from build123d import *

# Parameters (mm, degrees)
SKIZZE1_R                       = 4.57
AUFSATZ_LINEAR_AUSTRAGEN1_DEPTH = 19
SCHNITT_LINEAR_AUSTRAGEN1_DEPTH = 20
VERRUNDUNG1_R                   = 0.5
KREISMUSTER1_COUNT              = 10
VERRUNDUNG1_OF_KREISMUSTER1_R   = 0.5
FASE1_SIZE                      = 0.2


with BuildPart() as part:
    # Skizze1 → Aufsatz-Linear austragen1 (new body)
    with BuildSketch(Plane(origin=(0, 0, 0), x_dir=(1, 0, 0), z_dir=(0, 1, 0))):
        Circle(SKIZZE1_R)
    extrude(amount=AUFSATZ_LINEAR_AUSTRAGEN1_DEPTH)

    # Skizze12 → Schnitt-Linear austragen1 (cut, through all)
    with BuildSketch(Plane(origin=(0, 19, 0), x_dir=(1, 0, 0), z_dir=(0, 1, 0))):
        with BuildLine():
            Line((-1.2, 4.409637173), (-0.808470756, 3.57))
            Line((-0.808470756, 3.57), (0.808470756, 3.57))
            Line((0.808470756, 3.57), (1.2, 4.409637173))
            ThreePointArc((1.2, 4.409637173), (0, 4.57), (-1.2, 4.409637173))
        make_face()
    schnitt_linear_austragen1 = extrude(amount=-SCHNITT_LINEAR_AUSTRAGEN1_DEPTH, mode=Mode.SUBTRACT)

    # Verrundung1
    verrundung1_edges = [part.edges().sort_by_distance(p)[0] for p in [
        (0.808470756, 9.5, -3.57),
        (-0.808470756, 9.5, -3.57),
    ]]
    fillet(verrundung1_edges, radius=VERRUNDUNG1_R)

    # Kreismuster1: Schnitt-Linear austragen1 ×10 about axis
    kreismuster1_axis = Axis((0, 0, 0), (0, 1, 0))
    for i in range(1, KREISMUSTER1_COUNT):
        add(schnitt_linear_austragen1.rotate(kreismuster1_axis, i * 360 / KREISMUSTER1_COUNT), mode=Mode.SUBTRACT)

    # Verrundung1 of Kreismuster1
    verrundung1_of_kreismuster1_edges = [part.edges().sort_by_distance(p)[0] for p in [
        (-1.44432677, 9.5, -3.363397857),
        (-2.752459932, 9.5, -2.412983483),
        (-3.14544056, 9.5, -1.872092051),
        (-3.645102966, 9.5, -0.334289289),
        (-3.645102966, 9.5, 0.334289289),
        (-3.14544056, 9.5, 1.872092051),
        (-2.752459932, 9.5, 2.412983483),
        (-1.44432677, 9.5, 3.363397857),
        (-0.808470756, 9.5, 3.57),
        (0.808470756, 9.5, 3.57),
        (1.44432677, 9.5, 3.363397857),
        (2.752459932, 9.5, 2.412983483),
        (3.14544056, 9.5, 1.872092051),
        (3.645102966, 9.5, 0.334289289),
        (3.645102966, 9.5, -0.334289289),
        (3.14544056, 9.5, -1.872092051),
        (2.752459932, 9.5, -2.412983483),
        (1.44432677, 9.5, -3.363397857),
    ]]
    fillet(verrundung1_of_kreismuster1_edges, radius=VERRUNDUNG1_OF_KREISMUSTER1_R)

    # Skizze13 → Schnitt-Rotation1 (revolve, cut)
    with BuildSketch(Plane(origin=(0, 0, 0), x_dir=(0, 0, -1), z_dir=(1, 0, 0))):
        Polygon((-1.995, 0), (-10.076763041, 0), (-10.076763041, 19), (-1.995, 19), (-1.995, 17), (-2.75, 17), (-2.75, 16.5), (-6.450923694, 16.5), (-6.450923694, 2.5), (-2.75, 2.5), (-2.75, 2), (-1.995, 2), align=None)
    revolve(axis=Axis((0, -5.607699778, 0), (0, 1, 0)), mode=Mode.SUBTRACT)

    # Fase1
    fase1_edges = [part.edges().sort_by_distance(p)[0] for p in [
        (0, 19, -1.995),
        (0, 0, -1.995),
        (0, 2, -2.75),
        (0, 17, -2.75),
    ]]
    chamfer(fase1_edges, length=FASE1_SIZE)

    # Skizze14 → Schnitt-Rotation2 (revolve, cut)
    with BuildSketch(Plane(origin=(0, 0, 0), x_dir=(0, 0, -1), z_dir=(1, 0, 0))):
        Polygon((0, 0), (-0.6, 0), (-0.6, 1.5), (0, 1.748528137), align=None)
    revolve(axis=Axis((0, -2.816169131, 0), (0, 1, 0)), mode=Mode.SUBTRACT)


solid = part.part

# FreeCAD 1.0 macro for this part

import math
import FreeCAD as App
import Part
import Sketcher
Q = App.Units.Quantity


def edges_at(feature, points):
    """Names of the edges that pass closest to the given points."""
    edges = feature.Shape.Edges
    near = lambda p: min(range(len(edges)), key=lambda i: edges[i].distToShape(Part.Vertex(*p))[0])
    return sorted({f"Edge{near(p) + 1}" for p in points})


def add_polygon(sketch, points):
    """Adds a closed chain of lines whose ends are joined by coincident constraints."""
    first, n = sketch.GeometryCount, len(points)
    for a, b in zip(points, points[1:] + points[:1]):
        sketch.addGeometry(Part.LineSegment(App.Vector(*a, 0), App.Vector(*b, 0)), False)
    for i in range(n):
        sketch.addConstraint(Sketcher.Constraint("Coincident", first + i, 2, first + (i + 1) % n, 1))

doc = App.newDocument("Part")
body = doc.addObject("PartDesign::Body", "Body")

# Sketch on XZ plane
sketch1 = body.newObject("Sketcher::SketchObject", "Sketch")
sketch1.AttachmentSupport = (doc.getObject("XZ_Plane"), [""])
sketch1.MapMode = "FlatFace"
sketch1.addGeometry(Part.Circle(App.Vector(0, 0, 0), App.Vector(0, 0, 1), 4.6), False)
sketch1.addConstraint(Sketcher.Constraint("Coincident", 0, 3, -1, 1))
sketch1.addConstraint(Sketcher.Constraint("Diameter", 0, 9.14))
pad1 = body.newObject("PartDesign::Pad", "Pad")
pad1.Profile = sketch1
pad1.Length = 19
pad1.Reversed = True

# Sketch on XZ plane
sketch2 = body.newObject("Sketcher::SketchObject", "Sketch001")
sketch2.AttachmentSupport = (doc.getObject("XZ_Plane"), [""])
sketch2.MapMode = "FlatFace"
sketch2.AttachmentOffset = App.Placement(App.Vector(0, 0, -19), App.Rotation())
sketch2.addGeometry(Part.LineSegment(App.Vector(-1.2, -4.4, 0), App.Vector(-0.8, -3.6, 0)), False)
sketch2.addGeometry(Part.LineSegment(App.Vector(-0.8, -3.6, 0), App.Vector(0.8, -3.6, 0)), False)
sketch2.addGeometry(Part.LineSegment(App.Vector(0.8, -3.6, 0), App.Vector(1.2, -4.4, 0)), False)
sketch2.addGeometry(Part.ArcOfCircle(Part.Circle(App.Vector(0, 0, 0), App.Vector(0, 0, 1), 4.6), math.radians(-105), math.radians(-75)), False)
sketch2.addConstraint(Sketcher.Constraint("Coincident", 0, 2, 1, 1))
sketch2.addConstraint(Sketcher.Constraint("Coincident", 1, 2, 2, 1))
sketch2.addConstraint(Sketcher.Constraint("Coincident", 2, 2, 3, 2))
sketch2.addConstraint(Sketcher.Constraint("Coincident", 3, 1, 0, 1))
sketch2.addConstraint(Sketcher.Constraint("Horizontal", 1))
sketch2.addConstraint(Sketcher.Constraint("Coincident", 3, 3, -1, 1))
sketch2.addConstraint(Sketcher.Constraint("Horizontal", 2, 2, 3, 1))
sketch2.addConstraint(Sketcher.Constraint("Equal", 0, 2))
sketch2.addConstraint(Sketcher.Constraint("Angle", 0, Q("65 deg")))
sketch2.addConstraint(Sketcher.Constraint("Radius", 3, 4.57))
sketch2.addConstraint(Sketcher.Constraint("DistanceX", -1, 1, 2, 2, 1.2))
sketch2.addConstraint(Sketcher.Constraint("DistanceY", 0, 2, -1, 1, 3.57))
pocket1 = body.newObject("PartDesign::Pocket", "Pocket")
pocket1.Profile = sketch2
pocket1.Type = "ThroughAll"
pocket1.Reversed = True
doc.recompute()

fillet = body.newObject("PartDesign::Fillet", "Fillet")
fillet.Base = (pocket1, edges_at(pocket1, [(0.808, 9.5, -3.57), (-0.808, 9.5, -3.57)]))
fillet.Radius = 0.5
doc.recompute()

polarpattern = body.newObject("PartDesign::PolarPattern", "PolarPattern")
polarpattern.Originals = [pocket1]
polarpattern.Axis = (doc.getObject("Y_Axis"), [""])
polarpattern.Angle = 360
polarpattern.Occurrences = 10
body.Tip = polarpattern
doc.recompute()

fillet2 = body.newObject("PartDesign::Fillet", "Fillet001")
fillet2.Base = (polarpattern, edges_at(polarpattern, [
    (-1.444, 9.5, -3.363),
    (-2.752, 9.5, -2.413),
    (-3.145, 9.5, -1.872),
    (-3.645, 9.5, -0.334),
    (-3.645, 9.5, 0.334),
    (-3.145, 9.5, 1.872),
    (-2.752, 9.5, 2.413),
    (-1.444, 9.5, 3.363),
    (-0.808, 9.5, 3.57),
    (0.808, 9.5, 3.57),
    (1.444, 9.5, 3.363),
    (2.752, 9.5, 2.413),
    (3.145, 9.5, 1.872),
    (3.645, 9.5, 0.334),
    (3.645, 9.5, -0.334),
    (3.145, 9.5, -1.872),
    (2.752, 9.5, -2.413),
    (1.444, 9.5, -3.363),
]))
fillet2.Radius = 0.5

# Sketch on YZ plane
sketch3 = body.newObject("Sketcher::SketchObject", "Sketch002")
sketch3.AttachmentSupport = (doc.getObject("YZ_Plane"), [""])
sketch3.MapMode = "FlatFace"
add_polygon(sketch3, [(0, 10.1), (0, 2), (2, 2), (2, 2.8), (2.5, 2.8), (2.5, 6.5), (16.5, 6.5), (16.5, 2.8), (17, 2.8), (17, 2), (19, 2), (19, 10.1)])  # lines 0-11
sketch3.addConstraint(Sketcher.Constraint("Vertical", 0))
sketch3.addConstraint(Sketcher.Constraint("Horizontal", 1))
sketch3.addConstraint(Sketcher.Constraint("Vertical", 2))
sketch3.addConstraint(Sketcher.Constraint("Horizontal", 3))
sketch3.addConstraint(Sketcher.Constraint("Vertical", 4))
sketch3.addConstraint(Sketcher.Constraint("Horizontal", 5))
sketch3.addConstraint(Sketcher.Constraint("Vertical", 6))
sketch3.addConstraint(Sketcher.Constraint("Horizontal", 7))
sketch3.addConstraint(Sketcher.Constraint("Vertical", 8))
sketch3.addConstraint(Sketcher.Constraint("Horizontal", 9))
sketch3.addConstraint(Sketcher.Constraint("Vertical", 10))
sketch3.addConstraint(Sketcher.Constraint("Horizontal", 11))
sketch3.addConstraint(Sketcher.Constraint("PointOnObject", 0, 2, -2))
sketch3.addConstraint(Sketcher.Constraint("Horizontal", 3, 2, 6, 2))
sketch3.addConstraint(Sketcher.Constraint("Horizontal", 1, 2, 8, 2))
sketch3.addConstraint(Sketcher.Constraint("Equal", 3, 7))
sketch3.addConstraint(Sketcher.Constraint("Equal", 1, 9))
sketch3.addConstraint(Sketcher.Constraint("DistanceX", 1, 1, 1, 2, 2.0))
sketch3.addConstraint(Sketcher.Constraint("DistanceX", 5, 1, 5, 2, 14.0))
sketch3.addConstraint(Sketcher.Constraint("DistanceX", 11, 2, 11, 1, 19.0))
sketch3.addConstraint(Sketcher.Constraint("DistanceY", 2, 1, 2, 2, 0.755))
sketch3.addConstraint(Sketcher.Constraint("DistanceY", -1, 1, 2, 2, 2.75))
sketch3.addConstraint(Sketcher.Constraint("DistanceY", 0, 2, 0, 1, 8.081763))
sketch3.addConstraint(Sketcher.Constraint("DistanceY", 4, 1, 4, 2, 3.700924))
groove = body.newObject("PartDesign::Groove", "Groove")
groove.Profile = sketch3
groove.ReferenceAxis = (sketch3, ["H_Axis"])
groove.Angle = 360
doc.recompute()

chamfer = body.newObject("PartDesign::Chamfer", "Chamfer")
chamfer.Base = (groove, edges_at(groove, [
    (0, 19, -1.995),
    (0, 0, -1.995),
    (0, 2, -2.75),
    (0, 17, -2.75),
]))
chamfer.Size = 0.2

# Sketch on YZ plane
sketch4 = body.newObject("Sketcher::SketchObject", "Sketch003")
sketch4.AttachmentSupport = (doc.getObject("YZ_Plane"), [""])
sketch4.MapMode = "FlatFace"
add_polygon(sketch4, [(0, 0.6), (0, 0), (1.7, 0), (1.5, 0.6)])  # lines 0-3
sketch4.addConstraint(Sketcher.Constraint("Vertical", 0))
sketch4.addConstraint(Sketcher.Constraint("Horizontal", 1))
sketch4.addConstraint(Sketcher.Constraint("Horizontal", 3))
sketch4.addConstraint(Sketcher.Constraint("Coincident", 0, 2, -1, 1))
sketch4.addConstraint(Sketcher.Constraint("DistanceX", 3, 2, 3, 1, 1.5))
sketch4.addConstraint(Sketcher.Constraint("DistanceY", 0, 2, 0, 1, 0.6))
sketch4.addConstraint(Sketcher.Constraint("Angle", 2, Q("112.5 deg")))
groove2 = body.newObject("PartDesign::Groove", "Groove001")
groove2.Profile = sketch4
groove2.ReferenceAxis = (sketch4, ["H_Axis"])
groove2.Angle = 360

doc.recompute()
